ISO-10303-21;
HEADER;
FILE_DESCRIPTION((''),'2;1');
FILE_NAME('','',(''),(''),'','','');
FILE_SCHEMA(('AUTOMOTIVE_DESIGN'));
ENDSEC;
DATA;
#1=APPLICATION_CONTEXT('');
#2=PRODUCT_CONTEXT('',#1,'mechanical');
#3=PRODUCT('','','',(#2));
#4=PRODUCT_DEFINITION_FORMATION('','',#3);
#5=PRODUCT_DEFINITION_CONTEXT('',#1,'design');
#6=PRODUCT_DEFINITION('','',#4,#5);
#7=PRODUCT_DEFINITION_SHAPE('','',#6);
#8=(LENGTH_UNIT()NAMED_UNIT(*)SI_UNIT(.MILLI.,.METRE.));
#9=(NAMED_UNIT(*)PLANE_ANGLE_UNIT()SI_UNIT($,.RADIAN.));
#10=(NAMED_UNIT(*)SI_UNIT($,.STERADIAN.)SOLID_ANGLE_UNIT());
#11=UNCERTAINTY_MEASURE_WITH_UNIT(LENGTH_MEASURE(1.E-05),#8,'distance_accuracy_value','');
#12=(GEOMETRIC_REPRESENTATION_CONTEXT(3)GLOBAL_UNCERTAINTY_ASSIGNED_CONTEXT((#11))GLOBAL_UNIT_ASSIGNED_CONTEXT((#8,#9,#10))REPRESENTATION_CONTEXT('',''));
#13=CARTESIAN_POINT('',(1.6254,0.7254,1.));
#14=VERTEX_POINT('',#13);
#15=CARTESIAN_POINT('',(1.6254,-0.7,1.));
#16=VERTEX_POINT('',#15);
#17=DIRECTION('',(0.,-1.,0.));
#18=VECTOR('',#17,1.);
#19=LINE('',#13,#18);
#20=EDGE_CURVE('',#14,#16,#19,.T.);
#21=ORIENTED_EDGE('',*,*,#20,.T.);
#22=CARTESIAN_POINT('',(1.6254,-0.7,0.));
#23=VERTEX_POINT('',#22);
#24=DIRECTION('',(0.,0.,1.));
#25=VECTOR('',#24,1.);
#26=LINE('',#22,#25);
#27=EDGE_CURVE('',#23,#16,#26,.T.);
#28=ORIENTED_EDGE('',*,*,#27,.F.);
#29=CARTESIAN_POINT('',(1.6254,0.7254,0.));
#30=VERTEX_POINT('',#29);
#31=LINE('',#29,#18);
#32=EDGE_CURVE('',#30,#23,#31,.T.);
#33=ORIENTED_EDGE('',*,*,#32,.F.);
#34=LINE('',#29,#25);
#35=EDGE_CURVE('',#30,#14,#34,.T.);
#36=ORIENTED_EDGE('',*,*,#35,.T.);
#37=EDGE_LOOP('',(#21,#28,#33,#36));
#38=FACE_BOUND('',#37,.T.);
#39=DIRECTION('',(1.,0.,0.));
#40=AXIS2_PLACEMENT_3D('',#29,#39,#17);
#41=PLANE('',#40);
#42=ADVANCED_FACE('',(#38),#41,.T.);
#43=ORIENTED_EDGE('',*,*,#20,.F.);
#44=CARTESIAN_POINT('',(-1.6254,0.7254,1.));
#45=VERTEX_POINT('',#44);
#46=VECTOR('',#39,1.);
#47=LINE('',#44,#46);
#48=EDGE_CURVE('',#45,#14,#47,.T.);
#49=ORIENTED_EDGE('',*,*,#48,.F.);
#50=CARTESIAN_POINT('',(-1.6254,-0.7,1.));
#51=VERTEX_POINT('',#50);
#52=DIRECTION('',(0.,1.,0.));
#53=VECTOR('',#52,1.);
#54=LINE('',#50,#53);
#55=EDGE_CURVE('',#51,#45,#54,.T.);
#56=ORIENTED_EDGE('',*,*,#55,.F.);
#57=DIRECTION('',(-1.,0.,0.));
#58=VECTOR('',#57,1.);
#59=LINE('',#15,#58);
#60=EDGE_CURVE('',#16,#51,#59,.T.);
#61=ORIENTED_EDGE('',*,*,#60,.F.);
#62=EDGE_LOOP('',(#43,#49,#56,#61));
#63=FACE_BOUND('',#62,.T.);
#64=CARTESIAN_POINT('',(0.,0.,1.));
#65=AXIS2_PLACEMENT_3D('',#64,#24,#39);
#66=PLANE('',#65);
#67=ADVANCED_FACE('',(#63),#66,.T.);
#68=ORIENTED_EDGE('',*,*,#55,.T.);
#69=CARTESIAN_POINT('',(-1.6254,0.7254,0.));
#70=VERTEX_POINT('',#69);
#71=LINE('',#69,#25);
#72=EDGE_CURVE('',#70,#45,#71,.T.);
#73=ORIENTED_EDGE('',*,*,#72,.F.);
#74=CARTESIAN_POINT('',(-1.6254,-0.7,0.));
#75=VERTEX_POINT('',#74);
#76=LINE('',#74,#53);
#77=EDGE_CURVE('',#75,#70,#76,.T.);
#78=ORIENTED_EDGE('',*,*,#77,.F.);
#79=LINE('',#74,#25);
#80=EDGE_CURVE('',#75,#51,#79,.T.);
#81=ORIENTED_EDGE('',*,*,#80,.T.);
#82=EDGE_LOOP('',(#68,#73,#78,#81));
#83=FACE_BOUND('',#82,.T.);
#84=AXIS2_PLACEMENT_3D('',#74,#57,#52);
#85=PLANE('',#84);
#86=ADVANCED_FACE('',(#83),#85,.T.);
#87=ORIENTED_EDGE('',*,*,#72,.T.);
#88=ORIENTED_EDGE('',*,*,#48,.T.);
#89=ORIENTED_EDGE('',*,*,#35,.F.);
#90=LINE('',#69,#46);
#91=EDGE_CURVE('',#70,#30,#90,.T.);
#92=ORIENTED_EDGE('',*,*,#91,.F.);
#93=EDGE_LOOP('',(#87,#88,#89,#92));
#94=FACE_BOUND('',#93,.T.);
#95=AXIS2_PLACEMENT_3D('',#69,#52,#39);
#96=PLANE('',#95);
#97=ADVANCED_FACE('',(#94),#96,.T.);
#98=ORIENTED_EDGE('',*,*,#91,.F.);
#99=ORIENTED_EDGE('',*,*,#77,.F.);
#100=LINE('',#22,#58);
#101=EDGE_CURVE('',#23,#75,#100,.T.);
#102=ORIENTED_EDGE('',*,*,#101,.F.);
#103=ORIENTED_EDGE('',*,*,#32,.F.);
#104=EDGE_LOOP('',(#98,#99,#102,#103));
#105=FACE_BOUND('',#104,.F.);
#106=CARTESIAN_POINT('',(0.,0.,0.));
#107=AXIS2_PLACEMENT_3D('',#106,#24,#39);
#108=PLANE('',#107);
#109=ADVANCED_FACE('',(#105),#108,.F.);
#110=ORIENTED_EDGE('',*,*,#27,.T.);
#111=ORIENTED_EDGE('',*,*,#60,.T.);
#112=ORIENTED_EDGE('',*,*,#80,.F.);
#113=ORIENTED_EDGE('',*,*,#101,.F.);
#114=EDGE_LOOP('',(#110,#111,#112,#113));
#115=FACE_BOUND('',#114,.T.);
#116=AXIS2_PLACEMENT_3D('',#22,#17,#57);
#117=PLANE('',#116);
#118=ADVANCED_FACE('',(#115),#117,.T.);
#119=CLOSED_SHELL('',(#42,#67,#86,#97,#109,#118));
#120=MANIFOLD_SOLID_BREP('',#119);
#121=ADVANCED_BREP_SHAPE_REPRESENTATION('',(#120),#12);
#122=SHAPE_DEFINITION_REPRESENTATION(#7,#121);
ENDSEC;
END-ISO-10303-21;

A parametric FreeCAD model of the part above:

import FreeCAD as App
import Part
import Sketcher

V = App.Vector
Q = App.Units.Quantity

doc = App.newDocument("Part")
params = doc.addObject("Spreadsheet::Sheet", "Params")
for row, (alias, value) in enumerate([
    ("pad1_length", "1 mm"),
], start=1):
    params.set(f"A{row}", alias)
    params.set(f"B{row}", "=" + value)
    params.setAlias(f"B{row}", alias)

body = doc.addObject("PartDesign::Body", "Body")

sketch1 = body.newObject("Sketcher::SketchObject", "Sketch")
sketch1.AttachmentSupport = (doc.getObject("XY_Plane"), [""])
sketch1.MapMode = "FlatFace"
sketch1.addGeometry(Part.LineSegment(V(1.6, 0.7, 0), V(-1.6, 0.7, 0)), False)
sketch1.addGeometry(Part.LineSegment(V(-1.6, 0.7, 0), V(-1.6, -0.7, 0)), False)
sketch1.addGeometry(Part.LineSegment(V(-1.6, -0.7, 0), V(1.6, -0.7, 0)), False)
sketch1.addGeometry(Part.LineSegment(V(1.6, -0.7, 0), V(1.6, 0.7, 0)), False)
sketch1.addConstraint(Sketcher.Constraint("Coincident", 0, 2, 1, 1))
sketch1.addConstraint(Sketcher.Constraint("Coincident", 1, 2, 2, 1))
sketch1.addConstraint(Sketcher.Constraint("Coincident", 2, 2, 3, 1))
sketch1.addConstraint(Sketcher.Constraint("Coincident", 3, 2, 0, 1))
sketch1.addConstraint(Sketcher.Constraint("Horizontal", 0))
sketch1.addConstraint(Sketcher.Constraint("Vertical", 1))
sketch1.addConstraint(Sketcher.Constraint("Horizontal", 2))
sketch1.addConstraint(Sketcher.Constraint("Vertical", 3))
sketch1.addConstraint(Sketcher.Constraint("DistanceY", 1, 2, -1, 1, Q("0.7 mm")))
sketch1.addConstraint(Sketcher.Constraint("DistanceX", 0, 2, 0, 1, Q("3.2508 mm")))
sketch1.addConstraint(Sketcher.Constraint("DistanceY", 1, 2, 1, 1, Q("1.4254 mm")))
sketch1.addConstraint(Sketcher.Constraint("DistanceX", 0, 2, -1, 1, Q("1.6254 mm")))
pad1 = body.newObject("PartDesign::Pad", "Pad")
pad1.Profile = sketch1
pad1.setExpression("Length", "Params.pad1_length")

doc.recompute()
